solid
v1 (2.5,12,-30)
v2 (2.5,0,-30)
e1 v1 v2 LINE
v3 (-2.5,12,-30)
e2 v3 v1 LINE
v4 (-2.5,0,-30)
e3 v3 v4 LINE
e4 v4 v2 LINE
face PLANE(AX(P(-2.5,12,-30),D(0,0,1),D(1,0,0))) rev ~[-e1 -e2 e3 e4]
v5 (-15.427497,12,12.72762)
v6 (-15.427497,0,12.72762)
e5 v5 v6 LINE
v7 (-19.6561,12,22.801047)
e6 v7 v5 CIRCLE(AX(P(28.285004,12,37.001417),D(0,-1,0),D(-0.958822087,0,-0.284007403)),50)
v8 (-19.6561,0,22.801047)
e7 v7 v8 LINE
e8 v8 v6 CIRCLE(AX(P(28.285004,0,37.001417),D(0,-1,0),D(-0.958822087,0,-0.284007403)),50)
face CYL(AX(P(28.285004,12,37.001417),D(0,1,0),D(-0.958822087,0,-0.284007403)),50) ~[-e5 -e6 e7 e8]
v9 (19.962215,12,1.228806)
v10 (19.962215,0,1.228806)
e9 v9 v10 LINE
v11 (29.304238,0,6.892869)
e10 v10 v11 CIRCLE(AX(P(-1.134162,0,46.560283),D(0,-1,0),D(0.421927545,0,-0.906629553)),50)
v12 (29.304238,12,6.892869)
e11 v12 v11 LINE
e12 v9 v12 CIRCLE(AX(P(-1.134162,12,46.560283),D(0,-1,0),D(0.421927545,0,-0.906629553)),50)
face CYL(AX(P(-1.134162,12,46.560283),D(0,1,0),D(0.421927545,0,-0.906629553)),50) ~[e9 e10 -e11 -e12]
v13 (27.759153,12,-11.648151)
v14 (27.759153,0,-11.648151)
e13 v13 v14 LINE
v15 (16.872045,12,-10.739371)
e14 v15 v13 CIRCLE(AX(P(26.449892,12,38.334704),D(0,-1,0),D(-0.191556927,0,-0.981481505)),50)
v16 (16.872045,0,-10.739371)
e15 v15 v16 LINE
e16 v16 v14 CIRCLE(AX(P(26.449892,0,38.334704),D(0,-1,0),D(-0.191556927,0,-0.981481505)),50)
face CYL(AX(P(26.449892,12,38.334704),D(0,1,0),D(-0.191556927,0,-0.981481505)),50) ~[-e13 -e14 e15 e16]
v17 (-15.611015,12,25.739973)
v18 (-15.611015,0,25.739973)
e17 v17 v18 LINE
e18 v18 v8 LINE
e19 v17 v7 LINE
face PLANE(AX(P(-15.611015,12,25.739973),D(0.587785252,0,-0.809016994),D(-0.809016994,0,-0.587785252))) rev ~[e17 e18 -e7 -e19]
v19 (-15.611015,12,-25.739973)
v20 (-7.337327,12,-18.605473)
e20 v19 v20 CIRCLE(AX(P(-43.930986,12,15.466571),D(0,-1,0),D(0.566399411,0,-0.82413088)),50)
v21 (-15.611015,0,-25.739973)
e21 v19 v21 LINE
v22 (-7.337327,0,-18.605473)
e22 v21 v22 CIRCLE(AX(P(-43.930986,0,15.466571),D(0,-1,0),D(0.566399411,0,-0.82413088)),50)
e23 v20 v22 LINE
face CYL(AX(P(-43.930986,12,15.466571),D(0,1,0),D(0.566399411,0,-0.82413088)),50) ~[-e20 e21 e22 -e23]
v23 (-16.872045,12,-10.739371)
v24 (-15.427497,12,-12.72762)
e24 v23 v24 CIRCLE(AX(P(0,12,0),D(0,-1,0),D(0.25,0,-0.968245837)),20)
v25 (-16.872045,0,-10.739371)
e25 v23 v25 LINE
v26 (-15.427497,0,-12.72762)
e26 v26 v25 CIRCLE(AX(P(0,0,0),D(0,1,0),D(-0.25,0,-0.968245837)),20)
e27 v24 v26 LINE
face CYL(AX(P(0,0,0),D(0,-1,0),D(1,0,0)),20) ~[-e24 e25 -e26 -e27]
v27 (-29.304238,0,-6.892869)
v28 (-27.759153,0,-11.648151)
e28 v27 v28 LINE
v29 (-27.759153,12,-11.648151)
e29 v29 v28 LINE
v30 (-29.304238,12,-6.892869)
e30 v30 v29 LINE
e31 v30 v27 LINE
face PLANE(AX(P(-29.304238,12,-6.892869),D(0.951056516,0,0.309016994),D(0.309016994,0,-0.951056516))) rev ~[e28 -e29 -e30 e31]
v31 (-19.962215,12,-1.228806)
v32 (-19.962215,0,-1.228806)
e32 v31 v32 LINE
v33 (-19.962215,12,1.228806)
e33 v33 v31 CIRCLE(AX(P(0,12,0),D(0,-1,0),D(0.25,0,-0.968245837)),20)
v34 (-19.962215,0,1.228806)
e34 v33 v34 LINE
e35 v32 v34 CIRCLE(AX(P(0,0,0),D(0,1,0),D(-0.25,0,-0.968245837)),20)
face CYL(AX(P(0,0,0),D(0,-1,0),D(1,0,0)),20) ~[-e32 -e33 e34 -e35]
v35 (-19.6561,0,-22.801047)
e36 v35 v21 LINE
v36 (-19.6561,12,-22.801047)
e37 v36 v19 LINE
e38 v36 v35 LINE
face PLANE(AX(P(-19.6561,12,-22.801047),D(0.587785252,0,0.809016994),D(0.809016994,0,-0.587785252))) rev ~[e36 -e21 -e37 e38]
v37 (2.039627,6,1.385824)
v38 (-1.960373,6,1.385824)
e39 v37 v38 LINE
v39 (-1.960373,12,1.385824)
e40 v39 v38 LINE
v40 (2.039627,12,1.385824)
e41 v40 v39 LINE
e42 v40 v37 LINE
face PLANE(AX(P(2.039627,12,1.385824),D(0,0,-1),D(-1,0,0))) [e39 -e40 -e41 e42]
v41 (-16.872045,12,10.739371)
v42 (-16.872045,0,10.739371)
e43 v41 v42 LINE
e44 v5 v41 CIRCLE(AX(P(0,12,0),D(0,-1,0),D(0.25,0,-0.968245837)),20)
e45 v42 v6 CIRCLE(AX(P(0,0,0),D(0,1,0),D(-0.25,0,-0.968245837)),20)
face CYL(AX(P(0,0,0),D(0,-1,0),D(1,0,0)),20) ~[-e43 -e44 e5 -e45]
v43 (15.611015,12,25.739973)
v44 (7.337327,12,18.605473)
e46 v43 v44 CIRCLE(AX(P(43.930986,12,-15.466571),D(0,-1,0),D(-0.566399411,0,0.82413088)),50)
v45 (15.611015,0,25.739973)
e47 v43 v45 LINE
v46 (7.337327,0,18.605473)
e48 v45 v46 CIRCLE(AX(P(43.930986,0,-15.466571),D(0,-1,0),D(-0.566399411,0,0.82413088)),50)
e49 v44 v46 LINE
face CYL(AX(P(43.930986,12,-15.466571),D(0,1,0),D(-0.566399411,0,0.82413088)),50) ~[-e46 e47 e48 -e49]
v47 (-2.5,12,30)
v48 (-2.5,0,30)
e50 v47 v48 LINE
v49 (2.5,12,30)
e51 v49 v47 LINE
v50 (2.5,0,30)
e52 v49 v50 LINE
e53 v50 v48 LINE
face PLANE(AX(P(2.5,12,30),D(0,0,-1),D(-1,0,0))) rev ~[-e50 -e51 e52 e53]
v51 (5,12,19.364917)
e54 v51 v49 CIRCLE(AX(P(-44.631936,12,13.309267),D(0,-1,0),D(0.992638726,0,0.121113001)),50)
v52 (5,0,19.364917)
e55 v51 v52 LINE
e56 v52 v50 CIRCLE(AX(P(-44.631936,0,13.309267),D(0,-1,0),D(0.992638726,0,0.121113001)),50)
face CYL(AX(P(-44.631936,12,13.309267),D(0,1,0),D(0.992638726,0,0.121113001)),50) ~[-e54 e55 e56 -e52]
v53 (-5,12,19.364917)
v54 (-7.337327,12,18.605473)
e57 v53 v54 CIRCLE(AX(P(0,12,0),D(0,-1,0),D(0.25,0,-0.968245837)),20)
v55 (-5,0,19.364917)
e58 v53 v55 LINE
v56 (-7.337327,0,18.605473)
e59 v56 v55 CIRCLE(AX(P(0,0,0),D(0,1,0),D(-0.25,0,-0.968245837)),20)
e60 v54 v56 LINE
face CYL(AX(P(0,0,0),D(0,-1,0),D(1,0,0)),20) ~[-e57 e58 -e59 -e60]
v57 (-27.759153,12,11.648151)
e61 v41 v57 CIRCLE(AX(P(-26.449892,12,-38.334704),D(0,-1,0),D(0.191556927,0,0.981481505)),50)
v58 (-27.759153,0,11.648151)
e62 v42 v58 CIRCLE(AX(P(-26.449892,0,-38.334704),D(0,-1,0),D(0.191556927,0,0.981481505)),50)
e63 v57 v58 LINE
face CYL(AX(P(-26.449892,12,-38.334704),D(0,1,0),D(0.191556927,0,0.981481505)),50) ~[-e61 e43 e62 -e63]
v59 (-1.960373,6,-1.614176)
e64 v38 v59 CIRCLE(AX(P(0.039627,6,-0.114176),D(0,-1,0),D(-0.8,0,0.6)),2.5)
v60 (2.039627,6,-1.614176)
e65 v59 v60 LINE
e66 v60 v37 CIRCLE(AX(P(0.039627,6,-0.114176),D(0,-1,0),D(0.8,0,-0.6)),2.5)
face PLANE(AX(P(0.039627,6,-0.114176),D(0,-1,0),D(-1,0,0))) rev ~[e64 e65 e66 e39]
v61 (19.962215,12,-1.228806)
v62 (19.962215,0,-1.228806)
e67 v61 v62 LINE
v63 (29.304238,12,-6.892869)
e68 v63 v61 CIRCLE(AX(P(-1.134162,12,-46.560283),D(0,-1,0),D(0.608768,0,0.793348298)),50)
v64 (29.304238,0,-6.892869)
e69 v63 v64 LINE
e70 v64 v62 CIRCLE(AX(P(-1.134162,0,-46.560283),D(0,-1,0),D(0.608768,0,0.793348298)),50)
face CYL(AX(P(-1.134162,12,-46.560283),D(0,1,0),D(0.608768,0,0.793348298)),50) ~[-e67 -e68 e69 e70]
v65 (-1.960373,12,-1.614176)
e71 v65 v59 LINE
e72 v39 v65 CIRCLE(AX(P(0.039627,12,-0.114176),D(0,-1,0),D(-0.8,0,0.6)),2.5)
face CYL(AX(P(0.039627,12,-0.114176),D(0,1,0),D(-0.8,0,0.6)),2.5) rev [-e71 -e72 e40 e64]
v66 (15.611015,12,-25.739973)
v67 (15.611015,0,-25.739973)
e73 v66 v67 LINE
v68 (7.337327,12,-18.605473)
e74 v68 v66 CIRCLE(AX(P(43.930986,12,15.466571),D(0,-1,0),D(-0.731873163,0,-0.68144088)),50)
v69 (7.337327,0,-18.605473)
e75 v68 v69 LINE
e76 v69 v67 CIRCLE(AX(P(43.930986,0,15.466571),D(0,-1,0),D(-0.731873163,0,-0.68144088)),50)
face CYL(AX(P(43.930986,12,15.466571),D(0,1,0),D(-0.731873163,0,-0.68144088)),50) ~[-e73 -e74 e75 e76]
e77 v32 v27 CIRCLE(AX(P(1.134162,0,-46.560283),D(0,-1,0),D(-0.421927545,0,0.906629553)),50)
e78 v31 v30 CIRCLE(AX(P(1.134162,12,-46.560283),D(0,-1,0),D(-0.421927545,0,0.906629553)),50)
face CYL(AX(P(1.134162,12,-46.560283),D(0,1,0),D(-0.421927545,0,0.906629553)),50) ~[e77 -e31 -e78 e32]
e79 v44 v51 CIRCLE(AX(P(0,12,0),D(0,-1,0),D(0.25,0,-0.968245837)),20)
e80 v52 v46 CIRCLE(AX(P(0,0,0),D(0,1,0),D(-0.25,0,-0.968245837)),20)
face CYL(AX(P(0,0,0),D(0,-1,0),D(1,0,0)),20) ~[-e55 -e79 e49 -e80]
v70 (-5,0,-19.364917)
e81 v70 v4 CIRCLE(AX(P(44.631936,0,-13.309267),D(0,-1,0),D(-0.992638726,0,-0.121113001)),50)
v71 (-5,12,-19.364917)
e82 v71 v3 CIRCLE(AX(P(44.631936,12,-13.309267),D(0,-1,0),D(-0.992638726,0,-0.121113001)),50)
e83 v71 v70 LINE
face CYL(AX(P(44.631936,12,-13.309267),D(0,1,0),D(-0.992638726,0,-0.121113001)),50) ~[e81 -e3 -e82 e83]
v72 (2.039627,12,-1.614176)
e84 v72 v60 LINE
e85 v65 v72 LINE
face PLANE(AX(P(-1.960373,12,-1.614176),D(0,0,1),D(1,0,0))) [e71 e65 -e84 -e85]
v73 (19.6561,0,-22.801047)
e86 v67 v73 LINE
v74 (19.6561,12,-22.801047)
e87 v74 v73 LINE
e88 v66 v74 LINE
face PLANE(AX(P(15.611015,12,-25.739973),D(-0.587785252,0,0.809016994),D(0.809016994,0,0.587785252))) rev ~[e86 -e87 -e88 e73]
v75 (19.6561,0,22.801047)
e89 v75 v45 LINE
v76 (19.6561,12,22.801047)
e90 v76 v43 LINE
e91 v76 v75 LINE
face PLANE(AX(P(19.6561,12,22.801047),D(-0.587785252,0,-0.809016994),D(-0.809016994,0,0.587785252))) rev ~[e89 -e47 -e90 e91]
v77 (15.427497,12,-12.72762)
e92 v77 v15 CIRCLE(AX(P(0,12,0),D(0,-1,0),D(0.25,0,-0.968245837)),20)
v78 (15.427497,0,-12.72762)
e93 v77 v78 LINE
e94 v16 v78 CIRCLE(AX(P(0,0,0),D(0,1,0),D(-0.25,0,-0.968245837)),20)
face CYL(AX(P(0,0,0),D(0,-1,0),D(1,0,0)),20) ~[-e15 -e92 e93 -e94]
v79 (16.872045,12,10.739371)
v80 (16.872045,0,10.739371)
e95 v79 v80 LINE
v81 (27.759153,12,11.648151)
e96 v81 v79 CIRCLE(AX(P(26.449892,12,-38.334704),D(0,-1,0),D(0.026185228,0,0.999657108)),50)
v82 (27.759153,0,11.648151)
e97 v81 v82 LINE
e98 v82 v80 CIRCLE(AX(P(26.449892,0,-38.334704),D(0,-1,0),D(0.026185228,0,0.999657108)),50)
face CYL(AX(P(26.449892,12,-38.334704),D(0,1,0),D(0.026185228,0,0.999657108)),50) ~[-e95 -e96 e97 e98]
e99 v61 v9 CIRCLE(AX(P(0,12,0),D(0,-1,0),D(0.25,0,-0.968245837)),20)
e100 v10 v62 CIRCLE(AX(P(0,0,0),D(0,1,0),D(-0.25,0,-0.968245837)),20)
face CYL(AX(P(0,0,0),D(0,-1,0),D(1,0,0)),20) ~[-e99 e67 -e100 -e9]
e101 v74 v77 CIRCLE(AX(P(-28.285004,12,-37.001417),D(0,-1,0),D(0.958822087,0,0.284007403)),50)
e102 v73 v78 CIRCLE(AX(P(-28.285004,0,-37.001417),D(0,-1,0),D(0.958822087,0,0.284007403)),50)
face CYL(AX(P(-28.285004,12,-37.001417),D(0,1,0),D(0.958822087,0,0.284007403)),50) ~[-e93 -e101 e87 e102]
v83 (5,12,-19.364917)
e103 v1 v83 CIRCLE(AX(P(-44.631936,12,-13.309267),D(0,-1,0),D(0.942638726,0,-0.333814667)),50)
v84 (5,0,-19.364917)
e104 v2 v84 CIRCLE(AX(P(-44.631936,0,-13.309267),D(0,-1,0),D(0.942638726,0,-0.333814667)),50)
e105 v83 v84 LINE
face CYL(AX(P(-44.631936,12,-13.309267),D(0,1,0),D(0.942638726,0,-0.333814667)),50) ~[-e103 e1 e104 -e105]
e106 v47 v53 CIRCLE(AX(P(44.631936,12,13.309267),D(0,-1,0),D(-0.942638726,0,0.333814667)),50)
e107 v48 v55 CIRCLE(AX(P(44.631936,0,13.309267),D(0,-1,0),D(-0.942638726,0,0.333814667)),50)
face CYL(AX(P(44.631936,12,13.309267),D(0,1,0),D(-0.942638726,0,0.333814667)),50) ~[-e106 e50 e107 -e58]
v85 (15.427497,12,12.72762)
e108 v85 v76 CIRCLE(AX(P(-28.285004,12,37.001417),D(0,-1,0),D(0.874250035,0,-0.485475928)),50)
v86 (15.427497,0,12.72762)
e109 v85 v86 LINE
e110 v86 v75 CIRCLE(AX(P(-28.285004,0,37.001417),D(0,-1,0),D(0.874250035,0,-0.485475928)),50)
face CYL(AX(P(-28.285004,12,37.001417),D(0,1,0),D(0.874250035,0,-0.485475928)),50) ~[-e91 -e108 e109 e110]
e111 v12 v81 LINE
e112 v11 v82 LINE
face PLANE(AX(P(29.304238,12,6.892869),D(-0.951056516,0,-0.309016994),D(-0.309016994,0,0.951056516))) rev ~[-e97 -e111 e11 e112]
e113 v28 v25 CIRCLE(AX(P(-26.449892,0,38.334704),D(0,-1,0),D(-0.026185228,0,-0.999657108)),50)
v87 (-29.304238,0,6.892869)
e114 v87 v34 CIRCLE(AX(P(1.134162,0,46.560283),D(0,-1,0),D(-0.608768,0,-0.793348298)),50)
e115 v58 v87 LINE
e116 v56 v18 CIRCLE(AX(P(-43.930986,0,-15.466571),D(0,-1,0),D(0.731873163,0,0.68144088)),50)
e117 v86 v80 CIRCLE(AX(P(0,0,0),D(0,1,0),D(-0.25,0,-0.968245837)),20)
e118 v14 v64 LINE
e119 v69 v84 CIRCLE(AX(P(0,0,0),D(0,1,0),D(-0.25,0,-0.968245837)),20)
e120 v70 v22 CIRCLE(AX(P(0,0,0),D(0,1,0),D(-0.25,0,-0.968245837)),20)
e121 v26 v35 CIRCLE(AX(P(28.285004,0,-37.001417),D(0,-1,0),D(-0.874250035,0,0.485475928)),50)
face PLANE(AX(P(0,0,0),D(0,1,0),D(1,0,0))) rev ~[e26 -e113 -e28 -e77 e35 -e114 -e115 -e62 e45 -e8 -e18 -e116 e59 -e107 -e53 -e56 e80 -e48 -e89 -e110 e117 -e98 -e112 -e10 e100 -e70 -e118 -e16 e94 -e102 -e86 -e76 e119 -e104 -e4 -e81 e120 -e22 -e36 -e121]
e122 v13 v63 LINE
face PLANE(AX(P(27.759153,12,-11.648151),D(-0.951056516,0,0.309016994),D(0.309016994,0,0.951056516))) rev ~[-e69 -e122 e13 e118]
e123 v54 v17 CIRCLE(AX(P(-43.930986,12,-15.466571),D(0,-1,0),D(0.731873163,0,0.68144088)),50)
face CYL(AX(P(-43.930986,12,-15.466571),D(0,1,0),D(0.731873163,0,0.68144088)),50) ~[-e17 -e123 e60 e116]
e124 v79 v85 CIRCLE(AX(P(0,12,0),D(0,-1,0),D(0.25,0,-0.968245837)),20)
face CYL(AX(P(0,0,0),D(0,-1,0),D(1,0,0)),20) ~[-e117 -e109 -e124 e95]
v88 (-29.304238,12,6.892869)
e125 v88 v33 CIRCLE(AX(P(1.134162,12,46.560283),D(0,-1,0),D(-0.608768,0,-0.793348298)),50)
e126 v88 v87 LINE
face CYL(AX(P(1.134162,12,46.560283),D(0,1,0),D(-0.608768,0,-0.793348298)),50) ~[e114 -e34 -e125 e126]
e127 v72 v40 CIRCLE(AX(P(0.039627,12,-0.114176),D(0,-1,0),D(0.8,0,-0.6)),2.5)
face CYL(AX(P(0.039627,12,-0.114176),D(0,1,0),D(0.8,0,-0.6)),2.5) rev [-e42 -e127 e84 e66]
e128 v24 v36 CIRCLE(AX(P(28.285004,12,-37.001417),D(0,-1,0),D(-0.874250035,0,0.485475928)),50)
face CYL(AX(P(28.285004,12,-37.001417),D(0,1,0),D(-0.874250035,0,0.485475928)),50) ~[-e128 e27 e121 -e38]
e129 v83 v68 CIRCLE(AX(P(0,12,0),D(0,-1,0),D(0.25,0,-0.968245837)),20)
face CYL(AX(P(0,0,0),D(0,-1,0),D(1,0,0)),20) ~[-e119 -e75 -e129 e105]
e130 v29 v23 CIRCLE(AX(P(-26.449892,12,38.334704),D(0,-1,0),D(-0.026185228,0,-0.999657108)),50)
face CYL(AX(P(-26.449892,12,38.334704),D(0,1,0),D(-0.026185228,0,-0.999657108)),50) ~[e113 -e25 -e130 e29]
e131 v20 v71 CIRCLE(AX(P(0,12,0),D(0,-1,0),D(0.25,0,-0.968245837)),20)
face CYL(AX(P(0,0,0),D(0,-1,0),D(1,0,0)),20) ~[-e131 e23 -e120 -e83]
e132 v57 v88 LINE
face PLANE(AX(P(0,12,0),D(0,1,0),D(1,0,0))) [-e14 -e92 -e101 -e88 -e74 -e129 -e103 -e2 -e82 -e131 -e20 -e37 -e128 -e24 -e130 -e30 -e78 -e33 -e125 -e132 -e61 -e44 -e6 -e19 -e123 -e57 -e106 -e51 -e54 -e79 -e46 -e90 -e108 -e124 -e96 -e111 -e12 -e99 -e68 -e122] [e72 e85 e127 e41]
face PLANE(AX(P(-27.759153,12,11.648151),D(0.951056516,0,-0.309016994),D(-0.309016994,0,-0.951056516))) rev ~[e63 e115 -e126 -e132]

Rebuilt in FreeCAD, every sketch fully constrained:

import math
import FreeCAD as App
import Part
import Sketcher

V = App.Vector

doc = App.newDocument("Part")
body = doc.addObject("PartDesign::Body", "Body")

sketch1 = doc.addObject("Sketcher::SketchObject", "Sketch")
body.addObject(sketch1)
sketch1.AttachmentSupport = (doc.XZ_Plane, [""])
sketch1.MapMode = "FlatFace"
sketch1.addGeometry(Part.Circle(V(0, 0, 0), V(0, 0, 1), 20), False)
sketch1.addConstraint(Sketcher.Constraint("Coincident", 0, 3, -1, 1))
sketch1.addConstraint(Sketcher.Constraint("Diameter", 0, 40.0))
pad1 = doc.addObject("PartDesign::Pad", "Pad")
body.addObject(pad1)
pad1.Profile = sketch1
pad1.Length = 12
pad1.Reversed = True

sketch2 = doc.addObject("Sketcher::SketchObject", "Sketch001")
body.addObject(sketch2)
sketch2.AttachmentSupport = (doc.XZ_Plane, [""])
sketch2.MapMode = "FlatFace"
sketch2.AttachmentOffset = App.Placement(V(0, 0, -12), App.Rotation())
sketch2.addGeometry(Part.LineSegment(V(2, -1.6, 0), V(-2, -1.6, 0)), False)
sketch2.addGeometry(Part.ArcOfCircle(Part.Circle(V(0, -0.1, 0), V(0, 0, 1), 2.5), math.radians(143), math.radians(217)), False)
sketch2.addGeometry(Part.LineSegment(V(-2, 1.4, 0), V(2, 1.4, 0)), False)
sketch2.addGeometry(Part.ArcOfCircle(Part.Circle(V(0, -0.1, 0), V(0, 0, 1), 2.5), math.radians(-37), math.radians(37)), False)
sketch2.addConstraint(Sketcher.Constraint("Coincident", 0, 2, 1, 2))
sketch2.addConstraint(Sketcher.Constraint("Coincident", 1, 1, 2, 1))
sketch2.addConstraint(Sketcher.Constraint("Coincident", 2, 2, 3, 2))
sketch2.addConstraint(Sketcher.Constraint("Coincident", 3, 1, 0, 1))
sketch2.addConstraint(Sketcher.Constraint("Horizontal", 0))
sketch2.addConstraint(Sketcher.Constraint("Horizontal", 2))
sketch2.addConstraint(Sketcher.Constraint("Coincident", 3, 3, 1, 3))
sketch2.addConstraint(Sketcher.Constraint("Equal", 1, 3))
sketch2.addConstraint(Sketcher.Constraint("Vertical", 0, 2, 1, 1))
sketch2.addConstraint(Sketcher.Constraint("Radius", 1, 2.5))
sketch2.addConstraint(Sketcher.Constraint("DistanceX", 0, 2, 0, 1, 4.0))
sketch2.addConstraint(Sketcher.Constraint("DistanceX", -1, 1, 1, 3, 0.039627))
sketch2.addConstraint(Sketcher.Constraint("DistanceY", 1, 3, -1, 1, 0.114176))
pocket1 = doc.addObject("PartDesign::Pocket", "Pocket")
body.addObject(pocket1)
pocket1.Profile = sketch2
pocket1.Length = 6
pocket1.Reversed = True

sketch3 = doc.addObject("Sketcher::SketchObject", "Sketch002")
body.addObject(sketch3)
sketch3.AttachmentSupport = (doc.XZ_Plane, [""])
sketch3.MapMode = "FlatFace"
sketch3.AttachmentOffset = App.Placement(V(0, 0, -12), App.Rotation())
sketch3.addGeometry(Part.LineSegment(V(2, -30, 0), V(-2, -30, 0)), False)
sketch3.addGeometry(Part.ArcOfCircle(Part.Circle(V(45, -13, 0), V(0, 0, 1), 50), math.radians(-173.04), math.radians(-160.5)), False)
sketch3.addGeometry(Part.ArcOfCircle(Part.Circle(V(0, 0, 0), V(0, 0, 1), 20), math.radians(-104), math.radians(-76)), False)
sketch3.addGeometry(Part.ArcOfCircle(Part.Circle(V(-45, -13, 0), V(0, 0, 1), 50), math.radians(-19.5), math.radians(-6.96)), False)
sketch3.addConstraint(Sketcher.Constraint("Coincident", 0, 2, 1, 2))
sketch3.addConstraint(Sketcher.Constraint("Coincident", 1, 1, 2, 1))
sketch3.addConstraint(Sketcher.Constraint("Coincident", 2, 2, 3, 2))
sketch3.addConstraint(Sketcher.Constraint("Coincident", 3, 1, 0, 1))
sketch3.addConstraint(Sketcher.Constraint("Horizontal", 0))
sketch3.addConstraint(Sketcher.Constraint("Coincident", 2, 3, -1, 1))
sketch3.addConstraint(Sketcher.Constraint("Equal", 1, 3))
sketch3.addConstraint(Sketcher.Constraint("Symmetric", 1, 3, 3, 3, -2))
sketch3.addConstraint(Sketcher.Constraint("Radius", 1, 50.0))
sketch3.addConstraint(Sketcher.Constraint("Radius", 2, 20.0))
sketch3.addConstraint(Sketcher.Constraint("DistanceX", 0, 2, 0, 1, 5.0))
sketch3.addConstraint(Sketcher.Constraint("DistanceY", 0, 2, -1, 1, 30.0))
sketch3.addConstraint(Sketcher.Constraint("DistanceX", 1, 1, -1, 1, 5.0))
pad2 = doc.addObject("PartDesign::Pad", "Pad001")
body.addObject(pad2)
pad2.Profile = sketch3
pad2.Length = 12
doc.recompute()

polarpattern = doc.addObject("PartDesign::PolarPattern", "PolarPattern")
body.addObject(polarpattern)
polarpattern.Originals = [pad2]
polarpattern.Axis = (doc.Y_Axis, [""])
polarpattern.Angle = 360
polarpattern.Occurrences = 10
body.Tip = polarpattern

doc.recompute()
